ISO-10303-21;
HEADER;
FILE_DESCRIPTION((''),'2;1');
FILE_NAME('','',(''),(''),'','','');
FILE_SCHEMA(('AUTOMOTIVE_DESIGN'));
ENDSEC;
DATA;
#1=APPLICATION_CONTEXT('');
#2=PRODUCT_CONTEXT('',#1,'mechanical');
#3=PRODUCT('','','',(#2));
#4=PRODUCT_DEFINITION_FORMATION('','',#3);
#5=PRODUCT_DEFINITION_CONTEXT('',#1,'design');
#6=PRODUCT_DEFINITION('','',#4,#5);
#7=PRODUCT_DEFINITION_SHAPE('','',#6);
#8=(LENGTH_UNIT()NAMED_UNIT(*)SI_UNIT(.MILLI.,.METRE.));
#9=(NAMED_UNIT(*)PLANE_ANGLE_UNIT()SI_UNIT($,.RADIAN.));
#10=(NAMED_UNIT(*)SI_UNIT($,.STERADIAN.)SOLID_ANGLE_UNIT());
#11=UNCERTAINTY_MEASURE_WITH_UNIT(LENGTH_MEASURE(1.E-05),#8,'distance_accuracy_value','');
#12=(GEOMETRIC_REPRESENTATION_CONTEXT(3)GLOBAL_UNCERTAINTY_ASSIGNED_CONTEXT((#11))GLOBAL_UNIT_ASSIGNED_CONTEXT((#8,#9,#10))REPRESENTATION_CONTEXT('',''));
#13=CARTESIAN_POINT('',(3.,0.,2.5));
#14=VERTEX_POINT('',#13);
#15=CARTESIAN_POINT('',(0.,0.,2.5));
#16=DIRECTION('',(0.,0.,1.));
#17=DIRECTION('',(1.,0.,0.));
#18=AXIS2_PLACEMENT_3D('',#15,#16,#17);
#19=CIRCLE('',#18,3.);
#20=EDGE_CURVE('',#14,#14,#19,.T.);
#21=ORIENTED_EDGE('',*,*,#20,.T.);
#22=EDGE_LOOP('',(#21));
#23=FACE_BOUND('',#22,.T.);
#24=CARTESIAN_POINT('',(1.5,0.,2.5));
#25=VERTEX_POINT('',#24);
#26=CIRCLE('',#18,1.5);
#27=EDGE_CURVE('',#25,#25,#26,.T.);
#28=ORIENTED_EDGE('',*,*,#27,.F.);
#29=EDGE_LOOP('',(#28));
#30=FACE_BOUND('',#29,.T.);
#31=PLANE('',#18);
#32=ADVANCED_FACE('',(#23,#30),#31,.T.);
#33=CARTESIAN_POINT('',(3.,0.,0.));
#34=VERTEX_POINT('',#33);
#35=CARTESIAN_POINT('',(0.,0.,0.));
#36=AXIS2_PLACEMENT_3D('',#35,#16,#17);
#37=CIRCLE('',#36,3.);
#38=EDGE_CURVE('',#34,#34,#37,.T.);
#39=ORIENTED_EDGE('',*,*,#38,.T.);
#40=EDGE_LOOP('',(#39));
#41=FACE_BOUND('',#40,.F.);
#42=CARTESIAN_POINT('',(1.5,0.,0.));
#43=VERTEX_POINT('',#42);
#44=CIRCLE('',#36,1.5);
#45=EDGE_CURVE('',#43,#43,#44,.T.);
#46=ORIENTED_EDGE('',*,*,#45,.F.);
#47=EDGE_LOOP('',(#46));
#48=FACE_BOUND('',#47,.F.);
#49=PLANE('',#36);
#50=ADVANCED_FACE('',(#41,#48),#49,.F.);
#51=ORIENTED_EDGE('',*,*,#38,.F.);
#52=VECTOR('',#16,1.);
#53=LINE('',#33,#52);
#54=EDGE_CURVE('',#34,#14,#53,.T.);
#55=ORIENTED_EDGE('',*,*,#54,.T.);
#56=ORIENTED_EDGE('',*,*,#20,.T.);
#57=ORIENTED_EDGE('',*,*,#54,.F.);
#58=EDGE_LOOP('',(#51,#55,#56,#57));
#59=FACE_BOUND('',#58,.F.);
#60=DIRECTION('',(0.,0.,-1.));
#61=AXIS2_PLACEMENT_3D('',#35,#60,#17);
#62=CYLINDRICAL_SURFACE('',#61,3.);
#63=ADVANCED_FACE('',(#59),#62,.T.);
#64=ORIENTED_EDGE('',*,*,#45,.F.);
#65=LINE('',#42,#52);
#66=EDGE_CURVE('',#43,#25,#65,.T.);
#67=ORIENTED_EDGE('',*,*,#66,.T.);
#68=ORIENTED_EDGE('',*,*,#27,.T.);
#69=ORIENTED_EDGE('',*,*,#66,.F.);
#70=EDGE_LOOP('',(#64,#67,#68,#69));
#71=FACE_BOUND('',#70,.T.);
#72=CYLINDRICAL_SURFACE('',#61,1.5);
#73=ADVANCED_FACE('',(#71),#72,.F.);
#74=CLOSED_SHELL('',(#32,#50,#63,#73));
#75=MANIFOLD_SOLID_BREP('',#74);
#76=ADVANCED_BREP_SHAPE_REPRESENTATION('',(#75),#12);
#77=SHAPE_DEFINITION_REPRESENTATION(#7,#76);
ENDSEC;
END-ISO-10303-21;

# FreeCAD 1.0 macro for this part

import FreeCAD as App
import Part
import Sketcher

V = App.Vector
Q = App.Units.Quantity

doc = App.newDocument("Part")
body = doc.addObject("PartDesign::Body", "Body")

# Sketch on XY plane
sketch1 = body.newObject("Sketcher::SketchObject", "Sketch")
sketch1.AttachmentSupport = (doc.getObject("XY_Plane"), [""])
sketch1.MapMode = "FlatFace"
sketch1.addGeometry(Part.Circle(V(0, 0, 0), V(0, 0, 1), 3), False)
sketch1.addGeometry(Part.Circle(V(0, 0, 0), V(0, 0, 1), 1.5), False)
sketch1.addConstraint(Sketcher.Constraint("Coincident", 0, 3, -1, 1))
sketch1.addConstraint(Sketcher.Constraint("Coincident", 1, 3, -1, 1))
sketch1.addConstraint(Sketcher.Constraint("Diameter", 0, Q("6 mm")))
sketch1.addConstraint(Sketcher.Constraint("Diameter", 1, Q("3 mm")))
pad1 = body.newObject("PartDesign::Pad", "Pad")
pad1.Profile = sketch1
pad1.Length = 2.5

doc.recompute()
